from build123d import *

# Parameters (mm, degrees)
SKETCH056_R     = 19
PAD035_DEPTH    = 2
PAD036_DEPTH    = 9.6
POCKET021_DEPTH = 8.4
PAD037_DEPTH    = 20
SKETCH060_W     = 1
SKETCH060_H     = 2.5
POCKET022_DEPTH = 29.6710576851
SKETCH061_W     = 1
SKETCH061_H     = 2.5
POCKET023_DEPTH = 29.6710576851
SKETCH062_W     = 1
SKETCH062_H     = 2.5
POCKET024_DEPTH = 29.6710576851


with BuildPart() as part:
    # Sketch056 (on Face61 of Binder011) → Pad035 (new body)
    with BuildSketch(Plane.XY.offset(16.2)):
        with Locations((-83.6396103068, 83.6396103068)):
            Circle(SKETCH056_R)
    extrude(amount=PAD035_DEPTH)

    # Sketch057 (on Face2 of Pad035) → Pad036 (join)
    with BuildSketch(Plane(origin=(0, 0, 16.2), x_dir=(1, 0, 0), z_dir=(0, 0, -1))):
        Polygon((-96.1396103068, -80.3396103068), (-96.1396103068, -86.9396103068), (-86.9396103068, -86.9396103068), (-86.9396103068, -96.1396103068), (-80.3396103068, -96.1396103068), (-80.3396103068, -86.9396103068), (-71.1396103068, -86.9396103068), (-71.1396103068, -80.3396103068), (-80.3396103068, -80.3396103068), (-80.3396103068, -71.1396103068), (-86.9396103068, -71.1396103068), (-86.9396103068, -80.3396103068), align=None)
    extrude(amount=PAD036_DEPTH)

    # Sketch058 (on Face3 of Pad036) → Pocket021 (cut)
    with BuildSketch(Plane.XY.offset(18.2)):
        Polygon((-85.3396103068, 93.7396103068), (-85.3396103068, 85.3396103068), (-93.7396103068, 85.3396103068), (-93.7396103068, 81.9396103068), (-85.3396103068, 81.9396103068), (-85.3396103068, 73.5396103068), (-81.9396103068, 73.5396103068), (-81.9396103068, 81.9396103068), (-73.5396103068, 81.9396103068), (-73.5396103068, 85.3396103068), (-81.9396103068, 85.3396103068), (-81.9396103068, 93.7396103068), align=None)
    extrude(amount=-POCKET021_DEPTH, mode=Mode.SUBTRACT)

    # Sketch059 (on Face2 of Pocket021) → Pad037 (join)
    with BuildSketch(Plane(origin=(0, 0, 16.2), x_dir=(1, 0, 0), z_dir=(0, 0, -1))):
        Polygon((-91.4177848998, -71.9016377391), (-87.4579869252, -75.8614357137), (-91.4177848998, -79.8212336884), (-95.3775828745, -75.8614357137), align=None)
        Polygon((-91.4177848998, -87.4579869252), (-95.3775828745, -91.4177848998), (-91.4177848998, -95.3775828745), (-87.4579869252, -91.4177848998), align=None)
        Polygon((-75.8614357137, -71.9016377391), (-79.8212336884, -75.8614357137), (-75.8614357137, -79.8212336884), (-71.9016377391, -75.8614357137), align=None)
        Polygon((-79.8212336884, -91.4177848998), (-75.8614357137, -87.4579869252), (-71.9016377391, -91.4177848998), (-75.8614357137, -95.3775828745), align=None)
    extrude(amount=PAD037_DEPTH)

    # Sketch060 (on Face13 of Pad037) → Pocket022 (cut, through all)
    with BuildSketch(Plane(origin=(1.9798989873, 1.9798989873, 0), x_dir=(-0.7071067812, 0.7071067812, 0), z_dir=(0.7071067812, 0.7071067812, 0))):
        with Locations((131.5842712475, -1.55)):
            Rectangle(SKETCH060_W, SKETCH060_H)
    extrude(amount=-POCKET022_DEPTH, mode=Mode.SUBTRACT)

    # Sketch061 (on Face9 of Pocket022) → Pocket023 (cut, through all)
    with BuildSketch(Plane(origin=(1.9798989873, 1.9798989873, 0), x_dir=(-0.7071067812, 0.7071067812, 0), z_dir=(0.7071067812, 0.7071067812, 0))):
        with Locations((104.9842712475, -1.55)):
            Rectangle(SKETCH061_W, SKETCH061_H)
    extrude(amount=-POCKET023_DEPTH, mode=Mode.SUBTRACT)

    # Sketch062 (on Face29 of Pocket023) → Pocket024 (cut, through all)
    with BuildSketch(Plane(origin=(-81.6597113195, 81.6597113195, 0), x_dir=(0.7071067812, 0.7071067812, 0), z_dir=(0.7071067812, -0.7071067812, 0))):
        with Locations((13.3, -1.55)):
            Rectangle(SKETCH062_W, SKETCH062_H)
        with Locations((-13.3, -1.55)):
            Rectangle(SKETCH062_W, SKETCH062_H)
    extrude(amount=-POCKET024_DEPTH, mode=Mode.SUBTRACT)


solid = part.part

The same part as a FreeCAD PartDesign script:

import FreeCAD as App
import Part
import Sketcher

V = App.Vector
Q = App.Units.Quantity

doc = App.newDocument("Part")
params = doc.addObject("Spreadsheet::Sheet", "Params")
for row, (alias, value) in enumerate([
    ("sketch1_diameter", "38 mm"),
    ("pad1_length", "2 mm"),
    ("sketch2_width", "9.2 mm"),
    ("sketch2_width2", "6.6 mm"),
    ("pad2_length", "9.6 mm"),
    ("sketch3_width", "8.4 mm"),
    ("sketch3_width2", "3.4 mm"),
    ("pocket1_length", "8.4 mm"),
    ("sketch4_length", "5.6 mm"),
    ("pad3_length", "20 mm"),
    ("sketch5_width", "1 mm"),
    ("sketch5_height", "2.5 mm"),
    ("sketch6_width", "1 mm"),
    ("sketch6_height", "2.5 mm"),
    ("sketch7_width", "1 mm"),
    ("sketch7_height", "2.5 mm"),
], start=1):
    params.set(f"A{row}", alias)
    params.set(f"B{row}", "=" + value)
    params.setAlias(f"B{row}", alias)

body = doc.addObject("PartDesign::Body", "Body")

# Sketch on XY plane
sketch1 = body.newObject("Sketcher::SketchObject", "Sketch")
sketch1.AttachmentSupport = (doc.getObject("XY_Plane"), [""])
sketch1.MapMode = "FlatFace"
sketch1.AttachmentOffset = App.Placement(V(0, 0, 16.2), App.Rotation())
sketch1.addGeometry(Part.Circle(V(-84, 84, 0), V(0, 0, 1), 19), False)
sketch1.addConstraint(Sketcher.Constraint("Diameter", 0, Q("38 mm")))
sketch1.addConstraint(Sketcher.Constraint("DistanceX", 0, 3, -1, 1, Q("83.63961 mm")))
sketch1.addConstraint(Sketcher.Constraint("DistanceY", -1, 1, 0, 3, Q("83.63961 mm")))
sketch1.setExpression("Constraints[0]", "Params.sketch1_diameter")
pad1 = body.newObject("PartDesign::Pad", "Pad")
pad1.Profile = sketch1
pad1.setExpression("Length", "Params.pad1_length")

# Sketch on XY plane
sketch2 = body.newObject("Sketcher::SketchObject", "Sketch001")
sketch2.AttachmentSupport = (doc.getObject("XY_Plane"), [""])
sketch2.MapMode = "FlatFace"
sketch2.AttachmentOffset = App.Placement(V(0, 0, 16.2), App.Rotation())
sketch2.addGeometry(Part.LineSegment(V(-96, 80, 0), V(-96, 87, 0)), False)
sketch2.addGeometry(Part.LineSegment(V(-96, 87, 0), V(-87, 87, 0)), False)
sketch2.addGeometry(Part.LineSegment(V(-87, 87, 0), V(-87, 96, 0)), False)
sketch2.addGeometry(Part.LineSegment(V(-87, 96, 0), V(-80, 96, 0)), False)
sketch2.addGeometry(Part.LineSegment(V(-80, 96, 0), V(-80, 87, 0)), False)
sketch2.addGeometry(Part.LineSegment(V(-80, 87, 0), V(-71, 87, 0)), False)
sketch2.addGeometry(Part.LineSegment(V(-71, 87, 0), V(-71, 80, 0)), False)
sketch2.addGeometry(Part.LineSegment(V(-71, 80, 0), V(-80, 80, 0)), False)
sketch2.addGeometry(Part.LineSegment(V(-80, 80, 0), V(-80, 71, 0)), False)
sketch2.addGeometry(Part.LineSegment(V(-80, 71, 0), V(-87, 71, 0)), False)
sketch2.addGeometry(Part.LineSegment(V(-87, 71, 0), V(-87, 80, 0)), False)
sketch2.addGeometry(Part.LineSegment(V(-87, 80, 0), V(-96, 80, 0)), False)
sketch2.addConstraint(Sketcher.Constraint("Coincident", 0, 2, 1, 1))
sketch2.addConstraint(Sketcher.Constraint("Coincident", 1, 2, 2, 1))
sketch2.addConstraint(Sketcher.Constraint("Coincident", 2, 2, 3, 1))
sketch2.addConstraint(Sketcher.Constraint("Coincident", 3, 2, 4, 1))
sketch2.addConstraint(Sketcher.Constraint("Coincident", 4, 2, 5, 1))
sketch2.addConstraint(Sketcher.Constraint("Coincident", 5, 2, 6, 1))
sketch2.addConstraint(Sketcher.Constraint("Coincident", 6, 2, 7, 1))
sketch2.addConstraint(Sketcher.Constraint("Coincident", 7, 2, 8, 1))
sketch2.addConstraint(Sketcher.Constraint("Coincident", 8, 2, 9, 1))
sketch2.addConstraint(Sketcher.Constraint("Coincident", 9, 2, 10, 1))
sketch2.addConstraint(Sketcher.Constraint("Coincident", 10, 2, 11, 1))
sketch2.addConstraint(Sketcher.Constraint("Coincident", 11, 2, 0, 1))
sketch2.addConstraint(Sketcher.Constraint("Vertical", 0))
sketch2.addConstraint(Sketcher.Constraint("Horizontal", 1))
sketch2.addConstraint(Sketcher.Constraint("Vertical", 2))
sketch2.addConstraint(Sketcher.Constraint("Horizontal", 3))
sketch2.addConstraint(Sketcher.Constraint("Vertical", 4))
sketch2.addConstraint(Sketcher.Constraint("Horizontal", 5))
sketch2.addConstraint(Sketcher.Constraint("Vertical", 6))
sketch2.addConstraint(Sketcher.Constraint("Horizontal", 7))
sketch2.addConstraint(Sketcher.Constraint("Vertical", 8))
sketch2.addConstraint(Sketcher.Constraint("Horizontal", 9))
sketch2.addConstraint(Sketcher.Constraint("Vertical", 10))
sketch2.addConstraint(Sketcher.Constraint("Horizontal", 11))
sketch2.addConstraint(Sketcher.Constraint("Horizontal", 1, 2, 4, 2))
sketch2.addConstraint(Sketcher.Constraint("Horizontal", 7, 2, 10, 2))
sketch2.addConstraint(Sketcher.Constraint("Vertical", 4, 2, 7, 2))
sketch2.addConstraint(Sketcher.Constraint("Vertical", 2, 2, 9, 2))
sketch2.addConstraint(Sketcher.Constraint("Equal", 1, 5))
sketch2.addConstraint(Sketcher.Constraint("Equal", 9, 0))
sketch2.addConstraint(Sketcher.Constraint("Equal", 11, 2))
sketch2.addConstraint(Sketcher.Constraint("Equal", 4, 8))
sketch2.addConstraint(Sketcher.Constraint("DistanceX", 1, 1, 1, 2, Q("9.2 mm")))
sketch2.addConstraint(Sketcher.Constraint("DistanceX", 3, 1, 3, 2, Q("6.6 mm")))
sketch2.addConstraint(Sketcher.Constraint("DistanceX", 0, 2, -1, 1, Q("96.13961 mm")))
sketch2.addConstraint(Sketcher.Constraint("DistanceY", -1, 1, 0, 2, Q("86.93961 mm")))
sketch2.setExpression("Constraints[32]", "Params.sketch2_width")
sketch2.setExpression("Constraints[33]", "Params.sketch2_width2")
pad2 = body.newObject("PartDesign::Pad", "Pad001")
pad2.Profile = sketch2
pad2.setExpression("Length", "Params.pad2_length")
pad2.Reversed = True

# Sketch on XY plane
sketch3 = body.newObject("Sketcher::SketchObject", "Sketch002")
sketch3.AttachmentSupport = (doc.getObject("XY_Plane"), [""])
sketch3.MapMode = "FlatFace"
sketch3.AttachmentOffset = App.Placement(V(0, 0, 18.2), App.Rotation())
sketch3.addGeometry(Part.LineSegment(V(-85.3, 93.7, 0), V(-85.3, 85.3, 0)), False)
sketch3.addGeometry(Part.LineSegment(V(-85.3, 85.3, 0), V(-93.7, 85.3, 0)), False)
sketch3.addGeometry(Part.LineSegment(V(-93.7, 85.3, 0), V(-93.7, 81.9, 0)), False)
sketch3.addGeometry(Part.LineSegment(V(-93.7, 81.9, 0), V(-85.3, 81.9, 0)), False)
sketch3.addGeometry(Part.LineSegment(V(-85.3, 81.9, 0), V(-85.3, 73.5, 0)), False)
sketch3.addGeometry(Part.LineSegment(V(-85.3, 73.5, 0), V(-81.9, 73.5, 0)), False)
sketch3.addGeometry(Part.LineSegment(V(-81.9, 73.5, 0), V(-81.9, 81.9, 0)), False)
sketch3.addGeometry(Part.LineSegment(V(-81.9, 81.9, 0), V(-73.5, 81.9, 0)), False)
sketch3.addGeometry(Part.LineSegment(V(-73.5, 81.9, 0), V(-73.5, 85.3, 0)), False)
sketch3.addGeometry(Part.LineSegment(V(-73.5, 85.3, 0), V(-81.9, 85.3, 0)), False)
sketch3.addGeometry(Part.LineSegment(V(-81.9, 85.3, 0), V(-81.9, 93.7, 0)), False)
sketch3.addGeometry(Part.LineSegment(V(-81.9, 93.7, 0), V(-85.3, 93.7, 0)), False)
sketch3.addConstraint(Sketcher.Constraint("Coincident", 0, 2, 1, 1))
sketch3.addConstraint(Sketcher.Constraint("Coincident", 1, 2, 2, 1))
sketch3.addConstraint(Sketcher.Constraint("Coincident", 2, 2, 3, 1))
sketch3.addConstraint(Sketcher.Constraint("Coincident", 3, 2, 4, 1))
sketch3.addConstraint(Sketcher.Constraint("Coincident", 4, 2, 5, 1))
sketch3.addConstraint(Sketcher.Constraint("Coincident", 5, 2, 6, 1))
sketch3.addConstraint(Sketcher.Constraint("Coincident", 6, 2, 7, 1))
sketch3.addConstraint(Sketcher.Constraint("Coincident", 7, 2, 8, 1))
sketch3.addConstraint(Sketcher.Constraint("Coincident", 8, 2, 9, 1))
sketch3.addConstraint(Sketcher.Constraint("Coincident", 9, 2, 10, 1))
sketch3.addConstraint(Sketcher.Constraint("Coincident", 10, 2, 11, 1))
sketch3.addConstraint(Sketcher.Constraint("Coincident", 11, 2, 0, 1))
sketch3.addConstraint(Sketcher.Constraint("Vertical", 0))
sketch3.addConstraint(Sketcher.Constraint("Horizontal", 1))
sketch3.addConstraint(Sketcher.Constraint("Vertical", 2))
sketch3.addConstraint(Sketcher.Constraint("Horizontal", 3))
sketch3.addConstraint(Sketcher.Constraint("Vertical", 4))
sketch3.addConstraint(Sketcher.Constraint("Horizontal", 5))
sketch3.addConstraint(Sketcher.Constraint("Vertical", 6))
sketch3.addConstraint(Sketcher.Constraint("Horizontal", 7))
sketch3.addConstraint(Sketcher.Constraint("Vertical", 8))
sketch3.addConstraint(Sketcher.Constraint("Horizontal", 9))
sketch3.addConstraint(Sketcher.Constraint("Vertical", 10))
sketch3.addConstraint(Sketcher.Constraint("Horizontal", 11))
sketch3.addConstraint(Sketcher.Constraint("Horizontal", 3, 2, 6, 2))
sketch3.addConstraint(Sketcher.Constraint("Horizontal", 1, 2, 8, 2))
sketch3.addConstraint(Sketcher.Constraint("Vertical", 0, 2, 3, 2))
sketch3.addConstraint(Sketcher.Constraint("Vertical", 6, 2, 9, 2))
sketch3.addConstraint(Sketcher.Constraint("Equal", 3, 7))
sketch3.addConstraint(Sketcher.Constraint("Equal", 9, 0))
sketch3.addConstraint(Sketcher.Constraint("Equal", 11, 2))
sketch3.addConstraint(Sketcher.Constraint("Equal", 0, 4))
sketch3.addConstraint(Sketcher.Constraint("DistanceX", 1, 2, 1, 1, Q("8.4 mm")))
sketch3.addConstraint(Sketcher.Constraint("DistanceX", 5, 1, 5, 2, Q("3.4 mm")))
sketch3.addConstraint(Sketcher.Constraint("DistanceX", 0, 2, -1, 1, Q("85.33961 mm")))
sketch3.addConstraint(Sketcher.Constraint("DistanceY", -1, 1, 0, 2, Q("85.33961 mm")))
sketch3.setExpression("Constraints[32]", "Params.sketch3_width")
sketch3.setExpression("Constraints[33]", "Params.sketch3_width2")
pocket1 = body.newObject("PartDesign::Pocket", "Pocket")
pocket1.Profile = sketch3
pocket1.setExpression("Length", "Params.pocket1_length")

# Sketch on XY plane
sketch4 = body.newObject("Sketcher::SketchObject", "Sketch003")
sketch4.AttachmentSupport = (doc.getObject("XY_Plane"), [""])
sketch4.MapMode = "FlatFace"
sketch4.AttachmentOffset = App.Placement(V(0, 0, 16.2), App.Rotation())
sketch4.addGeometry(Part.LineSegment(V(-87, 76, 0), V(-91, 72, 0)), False)
sketch4.addGeometry(Part.LineSegment(V(-91, 72, 0), V(-95, 76, 0)), False)
sketch4.addGeometry(Part.LineSegment(V(-95, 76, 0), V(-91, 80, 0)), False)
sketch4.addGeometry(Part.LineSegment(V(-91, 80, 0), V(-87, 76, 0)), False)
sketch4.addGeometry(Part.LineSegment(V(-91, 87, 0), V(-95, 91, 0)), False)
sketch4.addGeometry(Part.LineSegment(V(-95, 91, 0), V(-91, 95, 0)), False)
sketch4.addGeometry(Part.LineSegment(V(-91, 95, 0), V(-87, 91, 0)), False)
sketch4.addGeometry(Part.LineSegment(V(-87, 91, 0), V(-91, 87, 0)), False)
sketch4.addGeometry(Part.LineSegment(V(-76, 72, 0), V(-80, 76, 0)), False)
sketch4.addGeometry(Part.LineSegment(V(-80, 76, 0), V(-76, 80, 0)), False)
sketch4.addGeometry(Part.LineSegment(V(-76, 80, 0), V(-72, 76, 0)), False)
sketch4.addGeometry(Part.LineSegment(V(-72, 76, 0), V(-76, 72, 0)), False)
sketch4.addGeometry(Part.LineSegment(V(-76, 87, 0), V(-80, 91, 0)), False)
sketch4.addGeometry(Part.LineSegment(V(-80, 91, 0), V(-76, 95, 0)), False)
sketch4.addGeometry(Part.LineSegment(V(-76, 95, 0), V(-72, 91, 0)), False)
sketch4.addGeometry(Part.LineSegment(V(-72, 91, 0), V(-76, 87, 0)), False)
sketch4.addConstraint(Sketcher.Constraint("Coincident", 0, 2, 1, 1))
sketch4.addConstraint(Sketcher.Constraint("Coincident", 1, 2, 2, 1))
sketch4.addConstraint(Sketcher.Constraint("Coincident", 2, 2, 3, 1))
sketch4.addConstraint(Sketcher.Constraint("Coincident", 3, 2, 0, 1))
sketch4.addConstraint(Sketcher.Constraint("Coincident", 4, 2, 5, 1))
sketch4.addConstraint(Sketcher.Constraint("Coincident", 5, 2, 6, 1))
sketch4.addConstraint(Sketcher.Constraint("Coincident", 6, 2, 7, 1))
sketch4.addConstraint(Sketcher.Constraint("Coincident", 7, 2, 4, 1))
sketch4.addConstraint(Sketcher.Constraint("Coincident", 8, 2, 9, 1))
sketch4.addConstraint(Sketcher.Constraint("Coincident", 9, 2, 10, 1))
sketch4.addConstraint(Sketcher.Constraint("Coincident", 10, 2, 11, 1))
sketch4.addConstraint(Sketcher.Constraint("Coincident", 11, 2, 8, 1))
sketch4.addConstraint(Sketcher.Constraint("Coincident", 12, 2, 13, 1))
sketch4.addConstraint(Sketcher.Constraint("Coincident", 13, 2, 14, 1))
sketch4.addConstraint(Sketcher.Constraint("Coincident", 14, 2, 15, 1))
sketch4.addConstraint(Sketcher.Constraint("Coincident", 15, 2, 12, 1))
sketch4.addConstraint(Sketcher.Constraint("Perpendicular", 0, 1))
sketch4.addConstraint(Sketcher.Constraint("Perpendicular", 1, 2))
sketch4.addConstraint(Sketcher.Constraint("Perpendicular", 2, 3))
sketch4.addConstraint(Sketcher.Constraint("Parallel", 3, 4))
sketch4.addConstraint(Sketcher.Constraint("Perpendicular", 4, 5))
sketch4.addConstraint(Sketcher.Constraint("Perpendicular", 5, 6))
sketch4.addConstraint(Sketcher.Constraint("Perpendicular", 6, 7))
sketch4.addConstraint(Sketcher.Constraint("Perpendicular", 7, 8))
sketch4.addConstraint(Sketcher.Constraint("Perpendicular", 8, 9))
sketch4.addConstraint(Sketcher.Constraint("Perpendicular", 9, 10))
sketch4.addConstraint(Sketcher.Constraint("Perpendicular", 10, 11))
sketch4.addConstraint(Sketcher.Constraint("Perpendicular", 11, 12))
sketch4.addConstraint(Sketcher.Constraint("Perpendicular", 12, 13))
sketch4.addConstraint(Sketcher.Constraint("Perpendicular", 13, 14))
sketch4.addConstraint(Sketcher.Constraint("Perpendicular", 14, 15))
sketch4.addConstraint(Sketcher.Constraint("Horizontal", 1, 2, 3, 2))
sketch4.addConstraint(Sketcher.Constraint("Horizontal", 4, 2, 6, 2))
sketch4.addConstraint(Sketcher.Constraint("Horizontal", 3, 2, 8, 2))
sketch4.addConstraint(Sketcher.Constraint("Horizontal", 2, 2, 9, 2))
sketch4.addConstraint(Sketcher.Constraint("Horizontal", 8, 2, 10, 2))
sketch4.addConstraint(Sketcher.Constraint("Horizontal", 6, 2, 12, 2))
sketch4.addConstraint(Sketcher.Constraint("Horizontal", 5, 2, 13, 2))
sketch4.addConstraint(Sketcher.Constraint("Horizontal", 12, 2, 14, 2))
sketch4.addConstraint(Sketcher.Constraint("Vertical", 0, 2, 2, 2))
sketch4.addConstraint(Sketcher.Constraint("Vertical", 1, 2, 4, 2))
sketch4.addConstraint(Sketcher.Constraint("Vertical", 2, 2, 5, 2))
sketch4.addConstraint(Sketcher.Constraint("Vertical", 8, 2, 12, 2))
sketch4.addConstraint(Sketcher.Constraint("Distance", 0, Q("5.6 mm")))
sketch4.addConstraint(Sketcher.Constraint("DistanceY", 2, 2, 4, 2, Q("11.596551 mm")))
sketch4.addConstraint(Sketcher.Constraint("DistanceX", 2, 2, 8, 2, Q("11.596551 mm")))
sketch4.addConstraint(Sketcher.Constraint("DistanceX", 0, 2, -1, 1, Q("91.417785 mm")))
sketch4.addConstraint(Sketcher.Constraint("DistanceY", -1, 1, 0, 2, Q("71.901638 mm")))
sketch4.setExpression("Constraints[43]", "Params.sketch4_length")
pad3 = body.newObject("PartDesign::Pad", "Pad002")
pad3.Profile = sketch4
pad3.setExpression("Length", "Params.pad3_length")
pad3.Reversed = True

# Sketch on an angled plane
sketch5 = body.newObject("Sketcher::SketchObject", "Sketch004")
sketch5.Placement = App.Placement(V(1.979899, 1.979899, 0), App.Rotation(V(-0.707106781, 0.707106781, 0), V(0, 0, 0.999999999), V(0.707106781, 0.707106781, 0), "ZXY"))
sketch5.addGeometry(Part.LineSegment(V(131.1, -0.3, 0), V(131.1, -2.8, 0)), False)
sketch5.addGeometry(Part.LineSegment(V(131.1, -2.8, 0), V(132.1, -2.8, 0)), False)
sketch5.addGeometry(Part.LineSegment(V(132.1, -2.8, 0), V(132.1, -0.3, 0)), False)
sketch5.addGeometry(Part.LineSegment(V(132.1, -0.3, 0), V(131.1, -0.3, 0)), False)
sketch5.addConstraint(Sketcher.Constraint("Coincident", 0, 2, 1, 1))
sketch5.addConstraint(Sketcher.Constraint("Coincident", 1, 2, 2, 1))
sketch5.addConstraint(Sketcher.Constraint("Coincident", 2, 2, 3, 1))
sketch5.addConstraint(Sketcher.Constraint("Coincident", 3, 2, 0, 1))
sketch5.addConstraint(Sketcher.Constraint("Vertical", 0))
sketch5.addConstraint(Sketcher.Constraint("Horizontal", 1))
sketch5.addConstraint(Sketcher.Constraint("Vertical", 2))
sketch5.addConstraint(Sketcher.Constraint("Horizontal", 3))
sketch5.addConstraint(Sketcher.Constraint("DistanceX", 1, 1, 1, 2, Q("1 mm")))
sketch5.addConstraint(Sketcher.Constraint("DistanceY", 0, 2, 0, 1, Q("2.5 mm")))
sketch5.addConstraint(Sketcher.Constraint("DistanceY", 0, 2, -1, 1, Q("2.8 mm")))
sketch5.addConstraint(Sketcher.Constraint("DistanceX", -1, 1, 0, 2, Q("131.084271 mm")))
sketch5.setExpression("Constraints[8]", "Params.sketch5_width")
sketch5.setExpression("Constraints[9]", "Params.sketch5_height")
pocket2 = body.newObject("PartDesign::Pocket", "Pocket001")
pocket2.Profile = sketch5
pocket2.Type = "ThroughAll"

# Sketch on an angled plane
sketch6 = body.newObject("Sketcher::SketchObject", "Sketch005")
sketch6.Placement = App.Placement(V(1.979899, 1.979899, 0), App.Rotation(V(-0.707106781, 0.707106781, 0), V(0, 0, 0.999999999), V(0.707106781, 0.707106781, 0), "ZXY"))
sketch6.addGeometry(Part.LineSegment(V(104.5, -0.3, 0), V(104.5, -2.8, 0)), False)
sketch6.addGeometry(Part.LineSegment(V(104.5, -2.8, 0), V(105.5, -2.8, 0)), False)
sketch6.addGeometry(Part.LineSegment(V(105.5, -2.8, 0), V(105.5, -0.3, 0)), False)
sketch6.addGeometry(Part.LineSegment(V(105.5, -0.3, 0), V(104.5, -0.3, 0)), False)
sketch6.addConstraint(Sketcher.Constraint("Coincident", 0, 2, 1, 1))
sketch6.addConstraint(Sketcher.Constraint("Coincident", 1, 2, 2, 1))
sketch6.addConstraint(Sketcher.Constraint("Coincident", 2, 2, 3, 1))
sketch6.addConstraint(Sketcher.Constraint("Coincident", 3, 2, 0, 1))
sketch6.addConstraint(Sketcher.Constraint("Vertical", 0))
sketch6.addConstraint(Sketcher.Constraint("Horizontal", 1))
sketch6.addConstraint(Sketcher.Constraint("Vertical", 2))
sketch6.addConstraint(Sketcher.Constraint("Horizontal", 3))
sketch6.addConstraint(Sketcher.Constraint("DistanceX", 1, 1, 1, 2, Q("1 mm")))
sketch6.addConstraint(Sketcher.Constraint("DistanceY", 0, 2, 0, 1, Q("2.5 mm")))
sketch6.addConstraint(Sketcher.Constraint("DistanceY", 0, 2, -1, 1, Q("2.8 mm")))
sketch6.addConstraint(Sketcher.Constraint("DistanceX", -1, 1, 0, 2, Q("104.484271 mm")))
sketch6.setExpression("Constraints[8]", "Params.sketch6_width")
sketch6.setExpression("Constraints[9]", "Params.sketch6_height")
pocket3 = body.newObject("PartDesign::Pocket", "Pocket002")
pocket3.Profile = sketch6
pocket3.Type = "ThroughAll"

# Sketch on an angled plane
sketch7 = body.newObject("Sketcher::SketchObject", "Sketch006")
sketch7.Placement = App.Placement(V(-81.659711, 81.659711, 0), App.Rotation(V(0.707106781, 0.707106781, 0), V(0, 0, 0.999999999), V(0.707106781, -0.707106781, 0), "ZXY"))
sketch7.addGeometry(Part.LineSegment(V(12.8, -0.3, 0), V(12.8, -2.8, 0)), False)
sketch7.addGeometry(Part.LineSegment(V(12.8, -2.8, 0), V(13.8, -2.8, 0)), False)
sketch7.addGeometry(Part.LineSegment(V(13.8, -2.8, 0), V(13.8, -0.3, 0)), False)
sketch7.addGeometry(Part.LineSegment(V(13.8, -0.3, 0), V(12.8, -0.3, 0)), False)
sketch7.addGeometry(Part.LineSegment(V(-13.8, -0.3, 0), V(-13.8, -2.8, 0)), False)
sketch7.addGeometry(Part.LineSegment(V(-13.8, -2.8, 0), V(-12.8, -2.8, 0)), False)
sketch7.addGeometry(Part.LineSegment(V(-12.8, -2.8, 0), V(-12.8, -0.3, 0)), False)
sketch7.addGeometry(Part.LineSegment(V(-12.8, -0.3, 0), V(-13.8, -0.3, 0)), False)
sketch7.addConstraint(Sketcher.Constraint("Coincident", 0, 2, 1, 1))
sketch7.addConstraint(Sketcher.Constraint("Coincident", 1, 2, 2, 1))
sketch7.addConstraint(Sketcher.Constraint("Coincident", 2, 2, 3, 1))
sketch7.addConstraint(Sketcher.Constraint("Coincident", 3, 2, 0, 1))
sketch7.addConstraint(Sketcher.Constraint("Coincident", 4, 2, 5, 1))
sketch7.addConstraint(Sketcher.Constraint("Coincident", 5, 2, 6, 1))
sketch7.addConstraint(Sketcher.Constraint("Coincident", 6, 2, 7, 1))
sketch7.addConstraint(Sketcher.Constraint("Coincident", 7, 2, 4, 1))
sketch7.addConstraint(Sketcher.Constraint("Vertical", 0))
sketch7.addConstraint(Sketcher.Constraint("Horizontal", 1))
sketch7.addConstraint(Sketcher.Constraint("Vertical", 2))
sketch7.addConstraint(Sketcher.Constraint("Horizontal", 3))
sketch7.addConstraint(Sketcher.Constraint("Vertical", 4))
sketch7.addConstraint(Sketcher.Constraint("Horizontal", 5))
sketch7.addConstraint(Sketcher.Constraint("Vertical", 6))
sketch7.addConstraint(Sketcher.Constraint("Horizontal", 7))
sketch7.addConstraint(Sketcher.Constraint("Symmetric", 1, 2, 4, 2, -2))
sketch7.addConstraint(Sketcher.Constraint("Symmetric", 3, 2, 6, 2, -2))
sketch7.addConstraint(Sketcher.Constraint("DistanceX", 1, 1, 1, 2, Q("1 mm")))
sketch7.addConstraint(Sketcher.Constraint("DistanceY", 0, 2, 0, 1, Q("2.5 mm")))
sketch7.addConstraint(Sketcher.Constraint("DistanceX", -1, 1, 0, 2, Q("12.8 mm")))
sketch7.addConstraint(Sketcher.Constraint("DistanceY", 0, 2, -1, 1, Q("2.8 mm")))
sketch7.setExpression("Constraints[18]", "Params.sketch7_width")
sketch7.setExpression("Constraints[19]", "Params.sketch7_height")
pocket4 = body.newObject("PartDesign::Pocket", "Pocket003")
pocket4.Profile = sketch7
pocket4.Type = "ThroughAll"

doc.recompute()
